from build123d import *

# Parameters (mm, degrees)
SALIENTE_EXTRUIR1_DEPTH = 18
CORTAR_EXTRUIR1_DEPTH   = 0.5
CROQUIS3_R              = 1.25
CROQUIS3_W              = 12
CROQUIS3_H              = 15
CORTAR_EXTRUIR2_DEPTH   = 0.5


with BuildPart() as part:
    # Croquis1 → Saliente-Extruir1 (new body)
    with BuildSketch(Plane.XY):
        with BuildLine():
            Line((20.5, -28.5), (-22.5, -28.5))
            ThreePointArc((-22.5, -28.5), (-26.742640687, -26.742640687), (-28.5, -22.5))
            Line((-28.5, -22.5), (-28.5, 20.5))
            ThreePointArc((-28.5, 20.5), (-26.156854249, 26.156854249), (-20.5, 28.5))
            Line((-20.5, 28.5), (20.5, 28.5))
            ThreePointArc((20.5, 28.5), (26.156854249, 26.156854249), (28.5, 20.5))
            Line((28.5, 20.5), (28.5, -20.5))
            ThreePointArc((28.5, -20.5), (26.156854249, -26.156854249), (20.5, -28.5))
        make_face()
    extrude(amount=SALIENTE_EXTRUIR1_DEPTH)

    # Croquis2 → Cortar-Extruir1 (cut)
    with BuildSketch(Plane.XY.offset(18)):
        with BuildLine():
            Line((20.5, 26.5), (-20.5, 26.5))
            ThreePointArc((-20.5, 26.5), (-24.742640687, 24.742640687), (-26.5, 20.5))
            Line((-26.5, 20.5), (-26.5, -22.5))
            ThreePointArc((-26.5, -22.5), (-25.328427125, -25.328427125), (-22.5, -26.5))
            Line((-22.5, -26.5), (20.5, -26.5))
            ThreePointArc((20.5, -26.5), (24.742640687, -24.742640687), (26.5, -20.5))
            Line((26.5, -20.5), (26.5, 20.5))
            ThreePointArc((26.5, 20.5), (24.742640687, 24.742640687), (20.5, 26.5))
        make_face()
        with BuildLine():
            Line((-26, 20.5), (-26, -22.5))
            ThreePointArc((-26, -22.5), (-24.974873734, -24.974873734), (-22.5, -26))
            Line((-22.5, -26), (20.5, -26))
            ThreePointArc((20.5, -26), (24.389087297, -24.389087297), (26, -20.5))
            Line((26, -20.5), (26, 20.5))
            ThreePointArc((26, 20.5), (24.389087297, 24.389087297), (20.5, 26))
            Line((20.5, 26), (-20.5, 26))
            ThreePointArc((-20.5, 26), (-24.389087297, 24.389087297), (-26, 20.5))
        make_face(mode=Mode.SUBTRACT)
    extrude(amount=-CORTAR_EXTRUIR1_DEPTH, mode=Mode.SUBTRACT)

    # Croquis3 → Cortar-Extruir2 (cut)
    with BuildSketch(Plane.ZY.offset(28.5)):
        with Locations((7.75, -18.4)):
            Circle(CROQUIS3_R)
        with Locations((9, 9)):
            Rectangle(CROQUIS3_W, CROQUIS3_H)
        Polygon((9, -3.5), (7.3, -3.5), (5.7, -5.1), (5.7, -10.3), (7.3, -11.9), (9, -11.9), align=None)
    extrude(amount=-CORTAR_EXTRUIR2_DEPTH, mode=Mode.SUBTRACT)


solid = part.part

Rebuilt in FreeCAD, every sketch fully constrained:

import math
import FreeCAD as App
import Part
import Sketcher

V = App.Vector

doc = App.newDocument("Part")
body = doc.addObject("PartDesign::Body", "Body")

sketch1 = body.newObject("Sketcher::SketchObject", "Sketch")
sketch1.AttachmentSupport = (doc.getObject("XY_Plane"), [""])
sketch1.MapMode = "FlatFace"
sketch1.addGeometry(Part.LineSegment(V(-22, -28, 0), V(20, -28, 0)), False)
sketch1.addGeometry(Part.ArcOfCircle(Part.Circle(V(20, -20, 0), V(0, 0, 1), 8), math.radians(-90), math.radians(0)), False)
sketch1.addGeometry(Part.LineSegment(V(28, -20, 0), V(28, 20, 0)), False)
sketch1.addGeometry(Part.ArcOfCircle(Part.Circle(V(20, 20, 0), V(0, 0, 1), 8), math.radians(0), math.radians(90)), False)
sketch1.addGeometry(Part.LineSegment(V(20, 28, 0), V(-20, 28, 0)), False)
sketch1.addGeometry(Part.ArcOfCircle(Part.Circle(V(-20, 20, 0), V(0, 0, 1), 8), math.radians(90), math.radians(180)), False)
sketch1.addGeometry(Part.LineSegment(V(-28, 20, 0), V(-28, -22, 0)), False)
sketch1.addGeometry(Part.ArcOfCircle(Part.Circle(V(-22, -22, 0), V(0, 0, 1), 6), math.radians(180), math.radians(270)), False)
sketch1.addConstraint(Sketcher.Constraint("Tangent", 0, 2, 1, 1))
sketch1.addConstraint(Sketcher.Constraint("Tangent", 1, 2, 2, 1))
sketch1.addConstraint(Sketcher.Constraint("Tangent", 2, 2, 3, 1))
sketch1.addConstraint(Sketcher.Constraint("Tangent", 3, 2, 4, 1))
sketch1.addConstraint(Sketcher.Constraint("Tangent", 4, 2, 5, 1))
sketch1.addConstraint(Sketcher.Constraint("Tangent", 5, 2, 6, 1))
sketch1.addConstraint(Sketcher.Constraint("Tangent", 6, 2, 7, 1))
sketch1.addConstraint(Sketcher.Constraint("Tangent", 7, 2, 0, 1))
sketch1.addConstraint(Sketcher.Constraint("Horizontal", 0))
sketch1.addConstraint(Sketcher.Constraint("Vertical", 2))
sketch1.addConstraint(Sketcher.Constraint("Horizontal", 4))
sketch1.addConstraint(Sketcher.Constraint("Vertical", 6))
sketch1.addConstraint(Sketcher.Constraint("Equal", 1, 3))
sketch1.addConstraint(Sketcher.Constraint("Equal", 3, 5))
sketch1.addConstraint(Sketcher.Constraint("Symmetric", 1, 3, 5, 3, -1, 1))
sketch1.addConstraint(Sketcher.Constraint("Equal", 4, 2))
sketch1.addConstraint(Sketcher.Constraint("Radius", 1, 8.0))
sketch1.addConstraint(Sketcher.Constraint("Radius", 7, 6.0))
sketch1.addConstraint(Sketcher.Constraint("DistanceX", 0, 1, 0, 2, 43.0))
pad1 = body.newObject("PartDesign::Pad", "Pad")
pad1.Profile = sketch1
pad1.Length = 18

sketch2 = body.newObject("Sketcher::SketchObject", "Sketch001")
sketch2.AttachmentSupport = (doc.getObject("XY_Plane"), [""])
sketch2.MapMode = "FlatFace"
sketch2.AttachmentOffset = App.Placement(V(0, 0, 18), App.Rotation())
sketch2.addGeometry(Part.LineSegment(V(20.5, 26.5, 0), V(-20.5, 26.5, 0)), False)
sketch2.addGeometry(Part.ArcOfCircle(Part.Circle(V(-20.5, 20.5, 0), V(0, 0, 1), 6), math.radians(90), math.radians(180)), False)
sketch2.addGeometry(Part.LineSegment(V(-26.5, 20.5, 0), V(-26.5, -22.5, 0)), False)
sketch2.addGeometry(Part.ArcOfCircle(Part.Circle(V(-22.5, -22.5, 0), V(0, 0, 1), 4), math.radians(180), math.radians(270)), False)
sketch2.addGeometry(Part.LineSegment(V(-22.5, -26.5, 0), V(20.5, -26.5, 0)), False)
sketch2.addGeometry(Part.ArcOfCircle(Part.Circle(V(20.5, -20.5, 0), V(0, 0, 1), 6), math.radians(-90), math.radians(0)), False)
sketch2.addGeometry(Part.LineSegment(V(26.5, -20.5, 0), V(26.5, 20.5, 0)), False)
sketch2.addGeometry(Part.ArcOfCircle(Part.Circle(V(20.5, 20.5, 0), V(0, 0, 1), 6), math.radians(0), math.radians(90)), False)
sketch2.addGeometry(Part.LineSegment(V(-26, -22.5, 0), V(-26, 20.5, 0)), False)
sketch2.addGeometry(Part.ArcOfCircle(Part.Circle(V(-20.5, 20.5, 0), V(0, 0, 1), 5.5), math.radians(90), math.radians(180)), False)
sketch2.addGeometry(Part.LineSegment(V(-20.5, 26, 0), V(20.5, 26, 0)), False)
sketch2.addGeometry(Part.ArcOfCircle(Part.Circle(V(20.5, 20.5, 0), V(0, 0, 1), 5.5), math.radians(0), math.radians(90)), False)
sketch2.addGeometry(Part.LineSegment(V(26, 20.5, 0), V(26, -20.5, 0)), False)
sketch2.addGeometry(Part.ArcOfCircle(Part.Circle(V(20.5, -20.5, 0), V(0, 0, 1), 5.5), math.radians(-90), math.radians(0)), False)
sketch2.addGeometry(Part.LineSegment(V(20.5, -26, 0), V(-22.5, -26, 0)), False)
sketch2.addGeometry(Part.ArcOfCircle(Part.Circle(V(-22.5, -22.5, 0), V(0, 0, 1), 3.5), math.radians(-180), math.radians(-90)), False)
sketch2.addConstraint(Sketcher.Constraint("Tangent", 0, 2, 1, 1))
sketch2.addConstraint(Sketcher.Constraint("Tangent", 1, 2, 2, 1))
sketch2.addConstraint(Sketcher.Constraint("Tangent", 2, 2, 3, 1))
sketch2.addConstraint(Sketcher.Constraint("Tangent", 3, 2, 4, 1))
sketch2.addConstraint(Sketcher.Constraint("Tangent", 4, 2, 5, 1))
sketch2.addConstraint(Sketcher.Constraint("Tangent", 5, 2, 6, 1))
sketch2.addConstraint(Sketcher.Constraint("Tangent", 6, 2, 7, 1))
sketch2.addConstraint(Sketcher.Constraint("Tangent", 7, 2, 0, 1))
sketch2.addConstraint(Sketcher.Constraint("Tangent", 8, 2, 9, 2))
sketch2.addConstraint(Sketcher.Constraint("Tangent", 9, 1, 10, 1))
sketch2.addConstraint(Sketcher.Constraint("Tangent", 10, 2, 11, 2))
sketch2.addConstraint(Sketcher.Constraint("Tangent", 11, 1, 12, 1))
sketch2.addConstraint(Sketcher.Constraint("Tangent", 12, 2, 13, 2))
sketch2.addConstraint(Sketcher.Constraint("Tangent", 13, 1, 14, 1))
sketch2.addConstraint(Sketcher.Constraint("Tangent", 14, 2, 15, 2))
sketch2.addConstraint(Sketcher.Constraint("Tangent", 15, 1, 8, 1))
sketch2.addConstraint(Sketcher.Constraint("Horizontal", 0))
sketch2.addConstraint(Sketcher.Constraint("Vertical", 2))
sketch2.addConstraint(Sketcher.Constraint("Horizontal", 4))
sketch2.addConstraint(Sketcher.Constraint("Vertical", 6))
sketch2.addConstraint(Sketcher.Constraint("Vertical", 8))
sketch2.addConstraint(Sketcher.Constraint("Horizontal", 10))
sketch2.addConstraint(Sketcher.Constraint("Vertical", 12))
sketch2.addConstraint(Sketcher.Constraint("Horizontal", 14))
sketch2.addConstraint(Sketcher.Constraint("Coincident", 9, 3, 1, 3))
sketch2.addConstraint(Sketcher.Constraint("Coincident", 11, 3, 7, 3))
sketch2.addConstraint(Sketcher.Constraint("Coincident", 13, 3, 5, 3))
sketch2.addConstraint(Sketcher.Constraint("Equal", 1, 5))
sketch2.addConstraint(Sketcher.Constraint("Equal", 5, 7))
sketch2.addConstraint(Sketcher.Constraint("Symmetric", 1, 3, 5, 3, -1, 1))
sketch2.addConstraint(Sketcher.Constraint("Horizontal", 15, 3, 2, 2))
sketch2.addConstraint(Sketcher.Constraint("Equal", 14, 2))
sketch2.addConstraint(Sketcher.Constraint("Radius", 1, 6.0))
sketch2.addConstraint(Sketcher.Constraint("Radius", 3, 4.0))
sketch2.addConstraint(Sketcher.Constraint("Radius", 9, 5.5))
sketch2.addConstraint(Sketcher.Constraint("DistanceX", 0, 2, 0, 1, 41.0))
pocket1 = body.newObject("PartDesign::Pocket", "Pocket")
pocket1.Profile = sketch2
pocket1.Length = 0.5

sketch3 = body.newObject("Sketcher::SketchObject", "Sketch002")
sketch3.AttachmentSupport = (doc.getObject("YZ_Plane"), [""])
sketch3.MapMode = "FlatFace"
sketch3.AttachmentOffset = App.Placement(V(0, 0, -28.5), App.Rotation())
sketch3.addGeometry(Part.Circle(V(-18.4, 7.8, 0), V(0, 0, 1), 1.2), False)
sketch3.addGeometry(Part.LineSegment(V(16.5, 3, 0), V(1.5, 3, 0)), False)
sketch3.addGeometry(Part.LineSegment(V(1.5, 3, 0), V(1.5, 15, 0)), False)
sketch3.addGeometry(Part.LineSegment(V(1.5, 15, 0), V(16.5, 15, 0)), False)
sketch3.addGeometry(Part.LineSegment(V(16.5, 15, 0), V(16.5, 3, 0)), False)
sketch3.addGeometry(Part.LineSegment(V(-3.5, 9, 0), V(-3.5, 7.3, 0)), False)
sketch3.addGeometry(Part.LineSegment(V(-3.5, 7.3, 0), V(-5.1, 5.7, 0)), False)
sketch3.addGeometry(Part.LineSegment(V(-5.1, 5.7, 0), V(-10.3, 5.7, 0)), False)
sketch3.addGeometry(Part.LineSegment(V(-10.3, 5.7, 0), V(-11.9, 7.3, 0)), False)
sketch3.addGeometry(Part.LineSegment(V(-11.9, 7.3, 0), V(-11.9, 9, 0)), False)
sketch3.addGeometry(Part.LineSegment(V(-11.9, 9, 0), V(-3.5, 9, 0)), False)
sketch3.addConstraint(Sketcher.Constraint("Coincident", 1, 2, 2, 1))
sketch3.addConstraint(Sketcher.Constraint("Coincident", 2, 2, 3, 1))
sketch3.addConstraint(Sketcher.Constraint("Coincident", 3, 2, 4, 1))
sketch3.addConstraint(Sketcher.Constraint("Coincident", 4, 2, 1, 1))
sketch3.addConstraint(Sketcher.Constraint("Coincident", 5, 2, 6, 1))
sketch3.addConstraint(Sketcher.Constraint("Coincident", 6, 2, 7, 1))
sketch3.addConstraint(Sketcher.Constraint("Coincident", 7, 2, 8, 1))
sketch3.addConstraint(Sketcher.Constraint("Coincident", 8, 2, 9, 1))
sketch3.addConstraint(Sketcher.Constraint("Coincident", 9, 2, 10, 1))
sketch3.addConstraint(Sketcher.Constraint("Coincident", 10, 2, 5, 1))
sketch3.addConstraint(Sketcher.Constraint("Horizontal", 1))
sketch3.addConstraint(Sketcher.Constraint("Vertical", 2))
sketch3.addConstraint(Sketcher.Constraint("Horizontal", 3))
sketch3.addConstraint(Sketcher.Constraint("Vertical", 4))
sketch3.addConstraint(Sketcher.Constraint("Vertical", 5))
sketch3.addConstraint(Sketcher.Constraint("Horizontal", 7))
sketch3.addConstraint(Sketcher.Constraint("Vertical", 9))
sketch3.addConstraint(Sketcher.Constraint("Horizontal", 10))
sketch3.addConstraint(Sketcher.Constraint("Perpendicular", 6, 8))
sketch3.addConstraint(Sketcher.Constraint("Horizontal", 5, 2, 8, 2))
sketch3.addConstraint(Sketcher.Constraint("Equal", 6, 8))
sketch3.addConstraint(Sketcher.Constraint("Diameter", 0, 2.5))
sketch3.addConstraint(Sketcher.Constraint("DistanceX", 1, 2, 1, 1, 15.0))
sketch3.addConstraint(Sketcher.Constraint("DistanceY", 2, 1, 2, 2, 12.0))
sketch3.addConstraint(Sketcher.Constraint("DistanceX", 7, 2, 7, 1, 5.2))
sketch3.addConstraint(Sketcher.Constraint("DistanceX", 10, 1, 10, 2, 8.4))
sketch3.addConstraint(Sketcher.Constraint("DistanceY", 5, 2, 5, 1, 1.7))
sketch3.addConstraint(Sketcher.Constraint("DistanceY", -1, 1, 1, 2, 3.0))
sketch3.addConstraint(Sketcher.Constraint("DistanceY", -1, 1, 9, 2, 9.0))
sketch3.addConstraint(Sketcher.Constraint("DistanceX", 5, 2, 1, 2, 5.0))
sketch3.addConstraint(Sketcher.Constraint("DistanceX", 0, 3, -1, 1, 18.4))
sketch3.addConstraint(Sketcher.Constraint("DistanceX", -1, 1, 1, 2, 1.5))
sketch3.addConstraint(Sketcher.Constraint("DistanceY", -1, 1, 0, 3, 7.75))
pocket2 = body.newObject("PartDesign::Pocket", "Pocket001")
pocket2.Profile = sketch3
pocket2.Length = 0.5
pocket2.Reversed = True

doc.recompute()
